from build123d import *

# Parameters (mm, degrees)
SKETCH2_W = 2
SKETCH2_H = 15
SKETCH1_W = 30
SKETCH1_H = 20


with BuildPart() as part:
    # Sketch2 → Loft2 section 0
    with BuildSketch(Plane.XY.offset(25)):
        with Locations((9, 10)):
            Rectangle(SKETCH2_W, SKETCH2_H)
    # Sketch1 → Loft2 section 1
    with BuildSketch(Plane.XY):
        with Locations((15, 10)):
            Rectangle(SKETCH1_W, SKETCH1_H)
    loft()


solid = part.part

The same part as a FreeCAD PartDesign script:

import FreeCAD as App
import Part
import Sketcher
Q = App.Units.Quantity

doc = App.newDocument("Part")
body = doc.addObject("PartDesign::Body", "Body")

# Sketch on XY plane
sketch1 = body.newObject("Sketcher::SketchObject", "Sketch")
sketch1.AttachmentSupport = (doc.getObject("XY_Plane"), [""])
sketch1.MapMode = "FlatFace"
sketch1.AttachmentOffset = App.Placement(App.Vector(0, 0, 25), App.Rotation())
sketch1.addGeometry([
    Part.LineSegment(App.Vector(8, 17.5, 0), App.Vector(8, 2.5, 0)),
    Part.LineSegment(App.Vector(8, 2.5, 0), App.Vector(10, 2.5, 0)),
    Part.LineSegment(App.Vector(10, 2.5, 0), App.Vector(10, 17.5, 0)),
    Part.LineSegment(App.Vector(10, 17.5, 0), App.Vector(8, 17.5, 0)),
], False)
sketch1.addConstraint([
    Sketcher.Constraint("Coincident", 0, 2, 1, 1),
    Sketcher.Constraint("Coincident", 1, 2, 2, 1),
    Sketcher.Constraint("Coincident", 2, 2, 3, 1),
    Sketcher.Constraint("Coincident", 3, 2, 0, 1),
    Sketcher.Constraint("Vertical", 0),
    Sketcher.Constraint("Horizontal", 1),
    Sketcher.Constraint("Vertical", 2),
    Sketcher.Constraint("Horizontal", 3),
    Sketcher.Constraint("DistanceX", 1, 1, 1, 2, Q("2 mm")),
    Sketcher.Constraint("DistanceY", 0, 2, 0, 1, Q("15 mm")),
    Sketcher.Constraint("DistanceX", -1, 1, 0, 2, Q("8 mm")),
    Sketcher.Constraint("DistanceY", -1, 1, 0, 2, Q("2.5 mm")),
])

# Sketch on XY plane
sketch2 = body.newObject("Sketcher::SketchObject", "Sketch001")
sketch2.AttachmentSupport = (doc.getObject("XY_Plane"), [""])
sketch2.MapMode = "FlatFace"
sketch2.addGeometry([
    Part.LineSegment(App.Vector(0, 20, 0), App.Vector(0, 0, 0)),
    Part.LineSegment(App.Vector(0, 0, 0), App.Vector(30, 0, 0)),
    Part.LineSegment(App.Vector(30, 0, 0), App.Vector(30, 20, 0)),
    Part.LineSegment(App.Vector(30, 20, 0), App.Vector(0, 20, 0)),
], False)
sketch2.addConstraint([
    Sketcher.Constraint("Coincident", 0, 2, 1, 1),
    Sketcher.Constraint("Coincident", 1, 2, 2, 1),
    Sketcher.Constraint("Coincident", 2, 2, 3, 1),
    Sketcher.Constraint("Coincident", 3, 2, 0, 1),
    Sketcher.Constraint("Vertical", 0),
    Sketcher.Constraint("Horizontal", 1),
    Sketcher.Constraint("Vertical", 2),
    Sketcher.Constraint("Horizontal", 3),
    Sketcher.Constraint("Coincident", 0, 2, -1, 1),
    Sketcher.Constraint("DistanceX", 1, 1, 1, 2, Q("30 mm")),
    Sketcher.Constraint("DistanceY", 0, 2, 0, 1, Q("20 mm")),
])

additiveloft = body.newObject("PartDesign::AdditiveLoft", "AdditiveLoft")
additiveloft.Profile = sketch1
additiveloft.Sections = [sketch2]

doc.recompute()
